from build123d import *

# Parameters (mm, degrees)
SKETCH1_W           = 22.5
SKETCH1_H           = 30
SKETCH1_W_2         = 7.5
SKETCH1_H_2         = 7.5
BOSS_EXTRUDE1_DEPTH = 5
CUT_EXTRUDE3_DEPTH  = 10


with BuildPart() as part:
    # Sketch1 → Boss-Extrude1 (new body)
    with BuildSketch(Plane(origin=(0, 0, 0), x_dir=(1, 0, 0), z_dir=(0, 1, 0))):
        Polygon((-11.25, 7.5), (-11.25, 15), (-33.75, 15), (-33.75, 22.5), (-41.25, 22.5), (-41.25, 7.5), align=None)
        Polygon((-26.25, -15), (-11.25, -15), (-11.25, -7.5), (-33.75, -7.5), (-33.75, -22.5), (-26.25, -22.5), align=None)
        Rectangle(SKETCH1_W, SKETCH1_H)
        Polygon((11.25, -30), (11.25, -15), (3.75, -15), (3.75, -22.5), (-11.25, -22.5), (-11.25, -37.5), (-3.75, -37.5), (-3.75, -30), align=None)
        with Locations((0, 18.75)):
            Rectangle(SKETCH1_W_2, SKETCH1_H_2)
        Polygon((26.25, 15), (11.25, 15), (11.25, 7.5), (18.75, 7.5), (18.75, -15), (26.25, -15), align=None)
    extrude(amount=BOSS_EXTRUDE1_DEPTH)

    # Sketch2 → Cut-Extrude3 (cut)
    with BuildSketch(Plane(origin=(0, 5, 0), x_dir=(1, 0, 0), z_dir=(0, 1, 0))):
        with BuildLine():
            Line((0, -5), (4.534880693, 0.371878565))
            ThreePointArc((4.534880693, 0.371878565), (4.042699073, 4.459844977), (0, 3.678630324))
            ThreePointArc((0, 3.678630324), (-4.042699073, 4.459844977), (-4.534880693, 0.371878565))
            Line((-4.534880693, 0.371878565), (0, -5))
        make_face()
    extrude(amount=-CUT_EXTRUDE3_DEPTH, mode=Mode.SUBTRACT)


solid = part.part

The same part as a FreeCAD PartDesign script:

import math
import FreeCAD as App
import Part
import Sketcher
from FreeCAD import Vector

doc = App.newDocument("Part")
body = doc.addObject("PartDesign::Body", "Body")

# Sketch on XZ plane
sketch1 = body.newObject("Sketcher::SketchObject", "Sketch")
sketch1.AttachmentSupport = (doc.getObject("XZ_Plane"), [""])
sketch1.MapMode = "FlatFace"
sketch1.addGeometry([
    Part.LineSegment(Vector(-34, -15, 0), Vector(-34, -22, 0)),  # 0
    Part.LineSegment(Vector(-34, -22, 0), Vector(-41, -22, 0)),  # 1
    Part.LineSegment(Vector(-41, -22, 0), Vector(-41, -8, 0)),  # 2
    Part.LineSegment(Vector(-41, -8, 0), Vector(-11, -8, 0)),  # 3
    Part.LineSegment(Vector(-11, -8, 0), Vector(-11, 8, 0)),  # 4
    Part.LineSegment(Vector(-11, 8, 0), Vector(-34, 8, 0)),  # 5
    Part.LineSegment(Vector(-34, 8, 0), Vector(-34, 22, 0)),  # 6
    Part.LineSegment(Vector(-34, 22, 0), Vector(-26, 22, 0)),  # 7
    Part.LineSegment(Vector(-26, 22, 0), Vector(-26, 15, 0)),  # 8
    Part.LineSegment(Vector(-26, 15, 0), Vector(4, 15, 0)),  # 9
    Part.LineSegment(Vector(4, 15, 0), Vector(4, 22, 0)),  # 10
    Part.LineSegment(Vector(4, 22, 0), Vector(-11, 22, 0)),  # 11
    Part.LineSegment(Vector(-11, 22, 0), Vector(-11, 38, 0)),  # 12
    Part.LineSegment(Vector(-11, 38, 0), Vector(-4, 38, 0)),  # 13
    Part.LineSegment(Vector(-4, 38, 0), Vector(-4, 30, 0)),  # 14
    Part.LineSegment(Vector(-4, 30, 0), Vector(11, 30, 0)),  # 15
    Part.LineSegment(Vector(11, 30, 0), Vector(11, -8, 0)),  # 16
    Part.LineSegment(Vector(11, -8, 0), Vector(19, -8, 0)),  # 17
    Part.LineSegment(Vector(19, -8, 0), Vector(19, 15, 0)),  # 18
    Part.LineSegment(Vector(19, 15, 0), Vector(26, 15, 0)),  # 19
    Part.LineSegment(Vector(26, 15, 0), Vector(26, -15, 0)),  # 20
    Part.LineSegment(Vector(26, -15, 0), Vector(4, -15, 0)),  # 21
    Part.LineSegment(Vector(4, -15, 0), Vector(4, -22, 0)),  # 22
    Part.LineSegment(Vector(4, -22, 0), Vector(-4, -22, 0)),  # 23
    Part.LineSegment(Vector(-4, -22, 0), Vector(-4, -15, 0)),  # 24
    Part.LineSegment(Vector(-4, -15, 0), Vector(-34, -15, 0)),  # 25
], False)
sketch1.addConstraint([
    Sketcher.Constraint("Coincident", 0, 2, 1, 1),
    Sketcher.Constraint("Coincident", 1, 2, 2, 1),
    Sketcher.Constraint("Coincident", 2, 2, 3, 1),
    Sketcher.Constraint("Coincident", 3, 2, 4, 1),
    Sketcher.Constraint("Coincident", 4, 2, 5, 1),
    Sketcher.Constraint("Coincident", 5, 2, 6, 1),
    Sketcher.Constraint("Coincident", 6, 2, 7, 1),
    Sketcher.Constraint("Coincident", 7, 2, 8, 1),
    Sketcher.Constraint("Coincident", 8, 2, 9, 1),
    Sketcher.Constraint("Coincident", 9, 2, 10, 1),
    Sketcher.Constraint("Coincident", 10, 2, 11, 1),
    Sketcher.Constraint("Coincident", 11, 2, 12, 1),
    Sketcher.Constraint("Coincident", 12, 2, 13, 1),
    Sketcher.Constraint("Coincident", 13, 2, 14, 1),
    Sketcher.Constraint("Coincident", 14, 2, 15, 1),
    Sketcher.Constraint("Coincident", 15, 2, 16, 1),
    Sketcher.Constraint("Coincident", 16, 2, 17, 1),
    Sketcher.Constraint("Coincident", 17, 2, 18, 1),
    Sketcher.Constraint("Coincident", 18, 2, 19, 1),
    Sketcher.Constraint("Coincident", 19, 2, 20, 1),
    Sketcher.Constraint("Coincident", 20, 2, 21, 1),
    Sketcher.Constraint("Coincident", 21, 2, 22, 1),
    Sketcher.Constraint("Coincident", 22, 2, 23, 1),
    Sketcher.Constraint("Coincident", 23, 2, 24, 1),
    Sketcher.Constraint("Coincident", 24, 2, 25, 1),
    Sketcher.Constraint("Coincident", 25, 2, 0, 1),
    Sketcher.Constraint("Vertical", 0),
    Sketcher.Constraint("Horizontal", 1),
    Sketcher.Constraint("Vertical", 2),
    Sketcher.Constraint("Horizontal", 3),
    Sketcher.Constraint("Vertical", 4),
    Sketcher.Constraint("Horizontal", 5),
    Sketcher.Constraint("Vertical", 6),
    Sketcher.Constraint("Horizontal", 7),
    Sketcher.Constraint("Vertical", 8),
    Sketcher.Constraint("Horizontal", 9),
    Sketcher.Constraint("Vertical", 10),
    Sketcher.Constraint("Horizontal", 11),
    Sketcher.Constraint("Vertical", 12),
    Sketcher.Constraint("Horizontal", 13),
    Sketcher.Constraint("Vertical", 14),
    Sketcher.Constraint("Horizontal", 15),
    Sketcher.Constraint("Vertical", 16),
    Sketcher.Constraint("Horizontal", 17),
    Sketcher.Constraint("Vertical", 18),
    Sketcher.Constraint("Horizontal", 19),
    Sketcher.Constraint("Vertical", 20),
    Sketcher.Constraint("Horizontal", 21),
    Sketcher.Constraint("Vertical", 22),
    Sketcher.Constraint("Horizontal", 23),
    Sketcher.Constraint("Vertical", 24),
    Sketcher.Constraint("Horizontal", 25),
    Sketcher.Constraint("Symmetric", 4, 2, 16, 2, -1, 1),
    Sketcher.Constraint("Symmetric", 8, 2, 20, 2, -1, 1),
    Sketcher.Constraint("Symmetric", 10, 2, 23, 2, -1, 1),
    Sketcher.Constraint("Symmetric", 21, 2, 24, 2, -2),
    Sketcher.Constraint("Symmetric", 0, 2, 6, 2, -1),
    Sketcher.Constraint("Horizontal", 7, 2, 10, 2),
    Sketcher.Constraint("Horizontal", 3, 2, 16, 2),
    Sketcher.Constraint("Horizontal", 9, 2, 18, 2),
    Sketcher.Constraint("Vertical", 4, 2, 11, 2),
    Sketcher.Constraint("Vertical", 14, 2, 23, 2),
    Sketcher.Constraint("Equal", 1, 7),
    Sketcher.Constraint("Equal", 3, 9),
    Sketcher.Constraint("Equal", 7, 13),
    Sketcher.Constraint("Equal", 13, 17),
    Sketcher.Constraint("Equal", 17, 19),
    Sketcher.Constraint("Equal", 23, 0),
    Sketcher.Constraint("Equal", 15, 2),
    Sketcher.Constraint("Equal", 2, 4),
    Sketcher.Constraint("Equal", 6, 12),
    Sketcher.Constraint("Equal", 10, 14),
    Sketcher.Constraint("DistanceX", 3, 1, 3, 2, 30.0),
])
pad1 = body.newObject("PartDesign::Pad", "Pad")
pad1.Profile = sketch1
pad1.Length = 5
pad1.Reversed = True

# Sketch on XZ plane
sketch2 = body.newObject("Sketcher::SketchObject", "Sketch001")
sketch2.AttachmentSupport = (doc.getObject("XZ_Plane"), [""])
sketch2.MapMode = "FlatFace"
sketch2.AttachmentOffset = App.Placement(Vector(0, 0, -5), App.Rotation())
sketch2.addGeometry([
    Part.LineSegment(Vector(0, 5, 0), Vector(4.5, -0.4, 0)),
    Part.ArcOfCircle(Part.Circle(Vector(2.4, -2.2, 0), Vector(0, 0, 1), 2.8), math.radians(-148), math.radians(40)),
    Part.ArcOfCircle(Part.Circle(Vector(-2.4, -2.2, 0), Vector(0, 0, 1), 2.8), math.radians(140), math.radians(328)),
    Part.LineSegment(Vector(-4.5, -0.4, 0), Vector(0, 5, 0)),
], False)
sketch2.addConstraint([
    Sketcher.Constraint("Tangent", 0, 2, 1, 2),
    Sketcher.Constraint("Coincident", 1, 1, 2, 2),
    Sketcher.Constraint("Tangent", 2, 1, 3, 1),
    Sketcher.Constraint("Coincident", 3, 2, 0, 1),
    Sketcher.Constraint("Equal", 1, 2),
    Sketcher.Constraint("Symmetric", 1, 3, 2, 3, -2),
    Sketcher.Constraint("PointOnObject", 3, 2, -2),
    Sketcher.Constraint("DistanceY", -1, 1, 3, 2, 5.0),
    Sketcher.Constraint("Radius", 1, 2.813333),
    Sketcher.Constraint("DistanceX", -1, 1, 1, 3, 2.385139),
    Sketcher.Constraint("DistanceX", -1, 1, 0, 2, 4.534881),
])
pocket1 = body.newObject("PartDesign::Pocket", "Pocket")
pocket1.Profile = sketch2
pocket1.Length = 10
pocket1.Reversed = True

doc.recompute()
